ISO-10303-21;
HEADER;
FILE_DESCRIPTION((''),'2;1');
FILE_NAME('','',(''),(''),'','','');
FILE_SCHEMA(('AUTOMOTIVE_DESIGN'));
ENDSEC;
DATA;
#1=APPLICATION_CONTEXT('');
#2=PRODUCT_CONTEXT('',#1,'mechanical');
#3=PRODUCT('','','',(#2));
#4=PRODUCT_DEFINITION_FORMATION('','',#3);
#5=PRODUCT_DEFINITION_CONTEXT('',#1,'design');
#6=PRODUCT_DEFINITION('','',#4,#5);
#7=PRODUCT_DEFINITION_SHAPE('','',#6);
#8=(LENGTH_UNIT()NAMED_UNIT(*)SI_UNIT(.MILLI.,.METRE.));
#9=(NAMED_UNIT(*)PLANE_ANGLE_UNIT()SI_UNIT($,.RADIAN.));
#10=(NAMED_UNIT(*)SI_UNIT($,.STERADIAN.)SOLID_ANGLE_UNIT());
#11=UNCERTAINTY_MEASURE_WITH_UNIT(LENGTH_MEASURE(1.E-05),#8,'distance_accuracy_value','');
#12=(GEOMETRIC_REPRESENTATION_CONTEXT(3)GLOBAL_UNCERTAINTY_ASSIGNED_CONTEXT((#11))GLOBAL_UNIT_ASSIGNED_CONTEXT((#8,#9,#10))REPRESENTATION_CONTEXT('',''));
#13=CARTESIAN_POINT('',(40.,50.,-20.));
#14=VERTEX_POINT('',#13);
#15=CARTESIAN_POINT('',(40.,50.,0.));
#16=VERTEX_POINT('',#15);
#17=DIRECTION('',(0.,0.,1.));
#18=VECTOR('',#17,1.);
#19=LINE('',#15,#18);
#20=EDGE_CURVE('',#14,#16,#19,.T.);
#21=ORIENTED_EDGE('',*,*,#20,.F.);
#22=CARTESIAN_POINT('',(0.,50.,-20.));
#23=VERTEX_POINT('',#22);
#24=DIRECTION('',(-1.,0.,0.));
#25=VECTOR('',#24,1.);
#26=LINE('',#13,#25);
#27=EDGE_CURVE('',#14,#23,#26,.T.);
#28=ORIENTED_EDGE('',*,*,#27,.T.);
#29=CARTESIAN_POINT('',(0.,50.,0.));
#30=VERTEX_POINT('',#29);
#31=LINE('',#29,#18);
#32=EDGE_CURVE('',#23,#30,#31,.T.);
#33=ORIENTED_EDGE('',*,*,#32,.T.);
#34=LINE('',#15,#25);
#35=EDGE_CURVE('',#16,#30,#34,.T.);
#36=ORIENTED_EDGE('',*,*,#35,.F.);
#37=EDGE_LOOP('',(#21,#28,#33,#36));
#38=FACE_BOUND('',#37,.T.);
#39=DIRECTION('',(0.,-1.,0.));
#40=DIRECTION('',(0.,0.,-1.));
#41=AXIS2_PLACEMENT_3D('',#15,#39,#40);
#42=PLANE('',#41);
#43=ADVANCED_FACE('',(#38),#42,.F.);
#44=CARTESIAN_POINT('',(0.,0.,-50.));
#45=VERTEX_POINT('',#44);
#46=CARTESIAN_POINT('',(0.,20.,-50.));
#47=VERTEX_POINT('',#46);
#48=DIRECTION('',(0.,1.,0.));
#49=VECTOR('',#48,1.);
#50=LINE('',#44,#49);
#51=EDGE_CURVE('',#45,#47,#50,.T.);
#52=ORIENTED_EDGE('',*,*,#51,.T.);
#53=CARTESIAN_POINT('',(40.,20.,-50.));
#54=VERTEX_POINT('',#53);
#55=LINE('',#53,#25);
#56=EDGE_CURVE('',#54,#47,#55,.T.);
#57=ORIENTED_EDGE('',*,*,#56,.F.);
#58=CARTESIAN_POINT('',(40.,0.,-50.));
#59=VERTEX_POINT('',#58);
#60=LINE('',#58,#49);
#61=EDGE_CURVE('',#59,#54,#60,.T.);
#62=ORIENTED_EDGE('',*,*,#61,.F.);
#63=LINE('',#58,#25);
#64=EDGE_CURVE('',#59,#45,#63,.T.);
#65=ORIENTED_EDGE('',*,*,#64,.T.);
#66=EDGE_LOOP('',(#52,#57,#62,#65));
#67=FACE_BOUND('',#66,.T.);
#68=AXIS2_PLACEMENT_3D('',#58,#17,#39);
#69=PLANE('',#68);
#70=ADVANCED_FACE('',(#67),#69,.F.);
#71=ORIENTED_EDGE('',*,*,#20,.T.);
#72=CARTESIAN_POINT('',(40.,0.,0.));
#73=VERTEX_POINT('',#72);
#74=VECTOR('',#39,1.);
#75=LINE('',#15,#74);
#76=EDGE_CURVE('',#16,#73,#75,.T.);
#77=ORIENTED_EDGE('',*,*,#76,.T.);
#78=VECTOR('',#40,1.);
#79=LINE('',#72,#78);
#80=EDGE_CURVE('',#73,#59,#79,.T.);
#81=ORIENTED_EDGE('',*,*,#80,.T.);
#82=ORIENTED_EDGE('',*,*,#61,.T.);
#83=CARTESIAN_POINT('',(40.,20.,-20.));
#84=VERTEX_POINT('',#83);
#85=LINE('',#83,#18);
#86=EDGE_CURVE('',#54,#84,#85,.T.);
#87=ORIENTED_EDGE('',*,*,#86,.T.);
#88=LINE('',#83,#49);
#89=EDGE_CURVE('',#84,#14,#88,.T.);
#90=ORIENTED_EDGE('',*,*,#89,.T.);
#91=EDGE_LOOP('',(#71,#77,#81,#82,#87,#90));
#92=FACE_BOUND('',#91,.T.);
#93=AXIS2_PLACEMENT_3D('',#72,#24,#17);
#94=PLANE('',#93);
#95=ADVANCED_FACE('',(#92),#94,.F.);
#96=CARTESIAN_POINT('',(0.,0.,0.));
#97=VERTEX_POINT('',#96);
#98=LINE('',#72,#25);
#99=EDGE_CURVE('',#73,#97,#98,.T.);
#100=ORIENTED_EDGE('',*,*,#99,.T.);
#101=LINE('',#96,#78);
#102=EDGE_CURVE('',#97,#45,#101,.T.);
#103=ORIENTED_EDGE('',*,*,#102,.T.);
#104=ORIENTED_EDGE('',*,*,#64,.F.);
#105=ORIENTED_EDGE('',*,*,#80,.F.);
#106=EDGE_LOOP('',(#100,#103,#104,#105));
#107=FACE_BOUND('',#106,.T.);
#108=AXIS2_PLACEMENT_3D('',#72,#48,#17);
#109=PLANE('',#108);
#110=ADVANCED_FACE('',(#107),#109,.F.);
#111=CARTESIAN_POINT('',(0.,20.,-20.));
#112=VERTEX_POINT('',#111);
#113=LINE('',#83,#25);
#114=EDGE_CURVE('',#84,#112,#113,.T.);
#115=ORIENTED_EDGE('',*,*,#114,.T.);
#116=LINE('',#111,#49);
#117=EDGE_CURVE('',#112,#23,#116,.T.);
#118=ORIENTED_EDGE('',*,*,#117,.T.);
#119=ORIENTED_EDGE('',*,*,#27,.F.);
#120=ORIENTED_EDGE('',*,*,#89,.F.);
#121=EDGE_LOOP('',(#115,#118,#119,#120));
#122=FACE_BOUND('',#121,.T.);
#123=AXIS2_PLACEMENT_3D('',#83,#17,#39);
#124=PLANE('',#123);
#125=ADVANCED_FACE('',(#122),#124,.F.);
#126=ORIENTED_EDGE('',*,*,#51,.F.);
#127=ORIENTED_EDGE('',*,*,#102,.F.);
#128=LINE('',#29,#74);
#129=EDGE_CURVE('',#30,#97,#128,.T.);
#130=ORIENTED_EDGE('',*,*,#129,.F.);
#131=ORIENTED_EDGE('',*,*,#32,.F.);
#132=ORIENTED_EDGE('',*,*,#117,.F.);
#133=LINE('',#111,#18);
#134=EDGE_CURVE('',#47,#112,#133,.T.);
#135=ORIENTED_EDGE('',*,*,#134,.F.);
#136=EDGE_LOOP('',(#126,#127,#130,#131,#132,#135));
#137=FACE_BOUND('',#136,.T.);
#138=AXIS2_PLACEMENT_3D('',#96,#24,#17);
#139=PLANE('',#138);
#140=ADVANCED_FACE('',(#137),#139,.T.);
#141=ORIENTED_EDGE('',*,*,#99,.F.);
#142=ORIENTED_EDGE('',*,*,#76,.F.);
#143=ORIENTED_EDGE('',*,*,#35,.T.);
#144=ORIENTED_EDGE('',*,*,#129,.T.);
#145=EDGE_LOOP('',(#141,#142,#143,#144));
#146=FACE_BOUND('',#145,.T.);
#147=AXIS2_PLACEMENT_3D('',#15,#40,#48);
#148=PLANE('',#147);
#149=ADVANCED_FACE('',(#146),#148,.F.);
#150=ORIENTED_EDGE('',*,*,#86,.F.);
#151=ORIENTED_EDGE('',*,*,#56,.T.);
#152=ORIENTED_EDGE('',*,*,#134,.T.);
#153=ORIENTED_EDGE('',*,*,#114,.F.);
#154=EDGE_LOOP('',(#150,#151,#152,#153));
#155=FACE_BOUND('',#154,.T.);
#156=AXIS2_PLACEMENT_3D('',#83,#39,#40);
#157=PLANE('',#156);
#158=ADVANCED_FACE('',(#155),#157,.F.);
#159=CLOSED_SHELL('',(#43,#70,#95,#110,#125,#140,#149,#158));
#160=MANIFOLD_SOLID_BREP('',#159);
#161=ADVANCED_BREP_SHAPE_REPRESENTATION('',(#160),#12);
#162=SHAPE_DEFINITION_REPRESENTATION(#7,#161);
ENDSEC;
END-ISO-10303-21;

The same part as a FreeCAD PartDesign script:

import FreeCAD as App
import Part
import Sketcher

V = App.Vector
Q = App.Units.Quantity

doc = App.newDocument("Part")
params = doc.addObject("Spreadsheet::Sheet", "Params")
for row, (alias, value) in enumerate([
    ("sketch1_width", "50 mm"),
    ("sketch1_width2", "20 mm"),
    ("pad1_length", "40 mm"),
], start=1):
    params.set(f"A{row}", alias)
    params.set(f"B{row}", "=" + value)
    params.setAlias(f"B{row}", alias)

body = doc.addObject("PartDesign::Body", "Body")

sketch1 = doc.addObject("Sketcher::SketchObject", "Sketch")
body.addObject(sketch1)
sketch1.AttachmentSupport = (doc.YZ_Plane, [""])
sketch1.MapMode = "FlatFace"
sketch1.addGeometry(Part.LineSegment(V(50, 0, 0), V(0, 0, 0)), False)
sketch1.addGeometry(Part.LineSegment(V(0, 0, 0), V(0, -50, 0)), False)
sketch1.addGeometry(Part.LineSegment(V(0, -50, 0), V(20, -50, 0)), False)
sketch1.addGeometry(Part.LineSegment(V(20, -50, 0), V(20, -20, 0)), False)
sketch1.addGeometry(Part.LineSegment(V(20, -20, 0), V(50, -20, 0)), False)
sketch1.addGeometry(Part.LineSegment(V(50, -20, 0), V(50, 0, 0)), False)
sketch1.addConstraint(Sketcher.Constraint("Coincident", 0, 2, 1, 1))
sketch1.addConstraint(Sketcher.Constraint("Coincident", 1, 2, 2, 1))
sketch1.addConstraint(Sketcher.Constraint("Coincident", 2, 2, 3, 1))
sketch1.addConstraint(Sketcher.Constraint("Coincident", 3, 2, 4, 1))
sketch1.addConstraint(Sketcher.Constraint("Coincident", 4, 2, 5, 1))
sketch1.addConstraint(Sketcher.Constraint("Coincident", 5, 2, 0, 1))
sketch1.addConstraint(Sketcher.Constraint("Horizontal", 0))
sketch1.addConstraint(Sketcher.Constraint("Vertical", 1))
sketch1.addConstraint(Sketcher.Constraint("Horizontal", 2))
sketch1.addConstraint(Sketcher.Constraint("Vertical", 3))
sketch1.addConstraint(Sketcher.Constraint("Horizontal", 4))
sketch1.addConstraint(Sketcher.Constraint("Vertical", 5))
sketch1.addConstraint(Sketcher.Constraint("Coincident", 0, 2, -1, 1))
sketch1.addConstraint(Sketcher.Constraint("Equal", 0, 1))
sketch1.addConstraint(Sketcher.Constraint("Equal", 4, 3))
sketch1.addConstraint(Sketcher.Constraint("DistanceX", 0, 2, 0, 1, Q("50 mm")))
sketch1.addConstraint(Sketcher.Constraint("DistanceX", 2, 1, 2, 2, Q("20 mm")))
sketch1.setExpression("Constraints[15]", "Params.sketch1_width")
sketch1.setExpression("Constraints[16]", "Params.sketch1_width2")
pad1 = doc.addObject("PartDesign::Pad", "Pad")
body.addObject(pad1)
pad1.Profile = sketch1
pad1.setExpression("Length", "Params.pad1_length")

doc.recompute()
